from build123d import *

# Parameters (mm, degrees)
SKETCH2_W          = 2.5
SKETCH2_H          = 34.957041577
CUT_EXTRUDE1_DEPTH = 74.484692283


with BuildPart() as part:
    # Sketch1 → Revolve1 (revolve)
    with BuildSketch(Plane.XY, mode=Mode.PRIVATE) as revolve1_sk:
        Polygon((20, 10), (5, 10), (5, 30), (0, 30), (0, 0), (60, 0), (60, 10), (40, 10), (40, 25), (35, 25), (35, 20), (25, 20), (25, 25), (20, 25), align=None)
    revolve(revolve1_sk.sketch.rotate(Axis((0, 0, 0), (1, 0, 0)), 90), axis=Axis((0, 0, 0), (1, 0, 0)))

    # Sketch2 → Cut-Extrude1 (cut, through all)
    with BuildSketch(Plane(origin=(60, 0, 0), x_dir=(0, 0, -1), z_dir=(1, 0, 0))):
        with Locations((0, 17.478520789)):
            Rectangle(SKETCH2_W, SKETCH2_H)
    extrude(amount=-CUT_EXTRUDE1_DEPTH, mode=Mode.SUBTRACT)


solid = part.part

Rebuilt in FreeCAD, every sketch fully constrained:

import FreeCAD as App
import Part
import Sketcher
Q = App.Units.Quantity


def add_polygon(sketch, points):
    """Adds a closed chain of lines whose ends are joined by coincident constraints."""
    first, n = sketch.GeometryCount, len(points)
    for a, b in zip(points, points[1:] + points[:1]):
        sketch.addGeometry(Part.LineSegment(App.Vector(*a, 0), App.Vector(*b, 0)), False)
    for i in range(n):
        sketch.addConstraint(Sketcher.Constraint("Coincident", first + i, 2, first + (i + 1) % n, 1))

doc = App.newDocument("Part")
body = doc.addObject("PartDesign::Body", "Body")

# Sketch on XY plane
sketch1 = doc.addObject("Sketcher::SketchObject", "Sketch")
body.addObject(sketch1)
sketch1.AttachmentSupport = (doc.XY_Plane, [""])
sketch1.MapMode = "FlatFace"
add_polygon(sketch1, [(20, 10), (5, 10), (5, 30), (0, 30), (0, 0), (60, 0), (60, 10), (40, 10), (40, 25), (35, 25), (35, 20), (25, 20), (25, 25), (20, 25)])  # lines 0-13
sketch1.addConstraint([
    Sketcher.Constraint("Horizontal", 0),
    Sketcher.Constraint("Vertical", 1),
    Sketcher.Constraint("Horizontal", 2),
    Sketcher.Constraint("Vertical", 3),
    Sketcher.Constraint("Horizontal", 4),
    Sketcher.Constraint("Vertical", 5),
    Sketcher.Constraint("Horizontal", 6),
    Sketcher.Constraint("Vertical", 7),
    Sketcher.Constraint("Horizontal", 8),
    Sketcher.Constraint("Vertical", 9),
    Sketcher.Constraint("Horizontal", 10),
    Sketcher.Constraint("Vertical", 11),
    Sketcher.Constraint("Horizontal", 12),
    Sketcher.Constraint("Vertical", 13),
    Sketcher.Constraint("Coincident", 3, 2, -1, 1),
    Sketcher.Constraint("Horizontal", 0, 2, 5, 2),
    Sketcher.Constraint("Horizontal", 8, 2, 11, 2),
    Sketcher.Constraint("Equal", 2, 8),
    Sketcher.Constraint("Equal", 8, 12),
    Sketcher.Constraint("Equal", 6, 1),
    Sketcher.Constraint("Equal", 10, 5),
    Sketcher.Constraint("Equal", 0, 7),
    Sketcher.Constraint("Equal", 12, 9),
    Sketcher.Constraint("DistanceX", 0, 2, 0, 1, Q("15 mm")),
    Sketcher.Constraint("DistanceX", 2, 2, 2, 1, Q("5 mm")),
    Sketcher.Constraint("DistanceX", 4, 1, 4, 2, Q("60 mm")),
    Sketcher.Constraint("DistanceX", 6, 2, 6, 1, Q("20 mm")),
])
revolution = doc.addObject("PartDesign::Revolution", "Revolution")
body.addObject(revolution)
revolution.Profile = sketch1
revolution.ReferenceAxis = (sketch1, ["H_Axis"])
revolution.Angle = 360

# Sketch on YZ plane
sketch2 = doc.addObject("Sketcher::SketchObject", "Sketch001")
body.addObject(sketch2)
sketch2.AttachmentSupport = (doc.YZ_Plane, [""])
sketch2.MapMode = "FlatFace"
sketch2.AttachmentOffset = App.Placement(App.Vector(0, 0, 60), App.Rotation())
add_polygon(sketch2, [(35, 1.2), (0, 1.2), (0, -1.2), (35, -1.2)])  # lines 0-3
sketch2.addConstraint([
    Sketcher.Constraint("Horizontal", 0),
    Sketcher.Constraint("Vertical", 1),
    Sketcher.Constraint("Horizontal", 2),
    Sketcher.Constraint("Vertical", 3),
    Sketcher.Constraint("Symmetric", 0, 2, 1, 2, -1, 1),
    Sketcher.Constraint("DistanceY", 1, 2, 1, 1, Q("2.5 mm")),
    Sketcher.Constraint("DistanceX", 0, 2, 0, 1, Q("34.957042 mm")),
])
pocket1 = doc.addObject("PartDesign::Pocket", "Pocket")
body.addObject(pocket1)
pocket1.Profile = sketch2
pocket1.Type = "ThroughAll"

doc.recompute()
